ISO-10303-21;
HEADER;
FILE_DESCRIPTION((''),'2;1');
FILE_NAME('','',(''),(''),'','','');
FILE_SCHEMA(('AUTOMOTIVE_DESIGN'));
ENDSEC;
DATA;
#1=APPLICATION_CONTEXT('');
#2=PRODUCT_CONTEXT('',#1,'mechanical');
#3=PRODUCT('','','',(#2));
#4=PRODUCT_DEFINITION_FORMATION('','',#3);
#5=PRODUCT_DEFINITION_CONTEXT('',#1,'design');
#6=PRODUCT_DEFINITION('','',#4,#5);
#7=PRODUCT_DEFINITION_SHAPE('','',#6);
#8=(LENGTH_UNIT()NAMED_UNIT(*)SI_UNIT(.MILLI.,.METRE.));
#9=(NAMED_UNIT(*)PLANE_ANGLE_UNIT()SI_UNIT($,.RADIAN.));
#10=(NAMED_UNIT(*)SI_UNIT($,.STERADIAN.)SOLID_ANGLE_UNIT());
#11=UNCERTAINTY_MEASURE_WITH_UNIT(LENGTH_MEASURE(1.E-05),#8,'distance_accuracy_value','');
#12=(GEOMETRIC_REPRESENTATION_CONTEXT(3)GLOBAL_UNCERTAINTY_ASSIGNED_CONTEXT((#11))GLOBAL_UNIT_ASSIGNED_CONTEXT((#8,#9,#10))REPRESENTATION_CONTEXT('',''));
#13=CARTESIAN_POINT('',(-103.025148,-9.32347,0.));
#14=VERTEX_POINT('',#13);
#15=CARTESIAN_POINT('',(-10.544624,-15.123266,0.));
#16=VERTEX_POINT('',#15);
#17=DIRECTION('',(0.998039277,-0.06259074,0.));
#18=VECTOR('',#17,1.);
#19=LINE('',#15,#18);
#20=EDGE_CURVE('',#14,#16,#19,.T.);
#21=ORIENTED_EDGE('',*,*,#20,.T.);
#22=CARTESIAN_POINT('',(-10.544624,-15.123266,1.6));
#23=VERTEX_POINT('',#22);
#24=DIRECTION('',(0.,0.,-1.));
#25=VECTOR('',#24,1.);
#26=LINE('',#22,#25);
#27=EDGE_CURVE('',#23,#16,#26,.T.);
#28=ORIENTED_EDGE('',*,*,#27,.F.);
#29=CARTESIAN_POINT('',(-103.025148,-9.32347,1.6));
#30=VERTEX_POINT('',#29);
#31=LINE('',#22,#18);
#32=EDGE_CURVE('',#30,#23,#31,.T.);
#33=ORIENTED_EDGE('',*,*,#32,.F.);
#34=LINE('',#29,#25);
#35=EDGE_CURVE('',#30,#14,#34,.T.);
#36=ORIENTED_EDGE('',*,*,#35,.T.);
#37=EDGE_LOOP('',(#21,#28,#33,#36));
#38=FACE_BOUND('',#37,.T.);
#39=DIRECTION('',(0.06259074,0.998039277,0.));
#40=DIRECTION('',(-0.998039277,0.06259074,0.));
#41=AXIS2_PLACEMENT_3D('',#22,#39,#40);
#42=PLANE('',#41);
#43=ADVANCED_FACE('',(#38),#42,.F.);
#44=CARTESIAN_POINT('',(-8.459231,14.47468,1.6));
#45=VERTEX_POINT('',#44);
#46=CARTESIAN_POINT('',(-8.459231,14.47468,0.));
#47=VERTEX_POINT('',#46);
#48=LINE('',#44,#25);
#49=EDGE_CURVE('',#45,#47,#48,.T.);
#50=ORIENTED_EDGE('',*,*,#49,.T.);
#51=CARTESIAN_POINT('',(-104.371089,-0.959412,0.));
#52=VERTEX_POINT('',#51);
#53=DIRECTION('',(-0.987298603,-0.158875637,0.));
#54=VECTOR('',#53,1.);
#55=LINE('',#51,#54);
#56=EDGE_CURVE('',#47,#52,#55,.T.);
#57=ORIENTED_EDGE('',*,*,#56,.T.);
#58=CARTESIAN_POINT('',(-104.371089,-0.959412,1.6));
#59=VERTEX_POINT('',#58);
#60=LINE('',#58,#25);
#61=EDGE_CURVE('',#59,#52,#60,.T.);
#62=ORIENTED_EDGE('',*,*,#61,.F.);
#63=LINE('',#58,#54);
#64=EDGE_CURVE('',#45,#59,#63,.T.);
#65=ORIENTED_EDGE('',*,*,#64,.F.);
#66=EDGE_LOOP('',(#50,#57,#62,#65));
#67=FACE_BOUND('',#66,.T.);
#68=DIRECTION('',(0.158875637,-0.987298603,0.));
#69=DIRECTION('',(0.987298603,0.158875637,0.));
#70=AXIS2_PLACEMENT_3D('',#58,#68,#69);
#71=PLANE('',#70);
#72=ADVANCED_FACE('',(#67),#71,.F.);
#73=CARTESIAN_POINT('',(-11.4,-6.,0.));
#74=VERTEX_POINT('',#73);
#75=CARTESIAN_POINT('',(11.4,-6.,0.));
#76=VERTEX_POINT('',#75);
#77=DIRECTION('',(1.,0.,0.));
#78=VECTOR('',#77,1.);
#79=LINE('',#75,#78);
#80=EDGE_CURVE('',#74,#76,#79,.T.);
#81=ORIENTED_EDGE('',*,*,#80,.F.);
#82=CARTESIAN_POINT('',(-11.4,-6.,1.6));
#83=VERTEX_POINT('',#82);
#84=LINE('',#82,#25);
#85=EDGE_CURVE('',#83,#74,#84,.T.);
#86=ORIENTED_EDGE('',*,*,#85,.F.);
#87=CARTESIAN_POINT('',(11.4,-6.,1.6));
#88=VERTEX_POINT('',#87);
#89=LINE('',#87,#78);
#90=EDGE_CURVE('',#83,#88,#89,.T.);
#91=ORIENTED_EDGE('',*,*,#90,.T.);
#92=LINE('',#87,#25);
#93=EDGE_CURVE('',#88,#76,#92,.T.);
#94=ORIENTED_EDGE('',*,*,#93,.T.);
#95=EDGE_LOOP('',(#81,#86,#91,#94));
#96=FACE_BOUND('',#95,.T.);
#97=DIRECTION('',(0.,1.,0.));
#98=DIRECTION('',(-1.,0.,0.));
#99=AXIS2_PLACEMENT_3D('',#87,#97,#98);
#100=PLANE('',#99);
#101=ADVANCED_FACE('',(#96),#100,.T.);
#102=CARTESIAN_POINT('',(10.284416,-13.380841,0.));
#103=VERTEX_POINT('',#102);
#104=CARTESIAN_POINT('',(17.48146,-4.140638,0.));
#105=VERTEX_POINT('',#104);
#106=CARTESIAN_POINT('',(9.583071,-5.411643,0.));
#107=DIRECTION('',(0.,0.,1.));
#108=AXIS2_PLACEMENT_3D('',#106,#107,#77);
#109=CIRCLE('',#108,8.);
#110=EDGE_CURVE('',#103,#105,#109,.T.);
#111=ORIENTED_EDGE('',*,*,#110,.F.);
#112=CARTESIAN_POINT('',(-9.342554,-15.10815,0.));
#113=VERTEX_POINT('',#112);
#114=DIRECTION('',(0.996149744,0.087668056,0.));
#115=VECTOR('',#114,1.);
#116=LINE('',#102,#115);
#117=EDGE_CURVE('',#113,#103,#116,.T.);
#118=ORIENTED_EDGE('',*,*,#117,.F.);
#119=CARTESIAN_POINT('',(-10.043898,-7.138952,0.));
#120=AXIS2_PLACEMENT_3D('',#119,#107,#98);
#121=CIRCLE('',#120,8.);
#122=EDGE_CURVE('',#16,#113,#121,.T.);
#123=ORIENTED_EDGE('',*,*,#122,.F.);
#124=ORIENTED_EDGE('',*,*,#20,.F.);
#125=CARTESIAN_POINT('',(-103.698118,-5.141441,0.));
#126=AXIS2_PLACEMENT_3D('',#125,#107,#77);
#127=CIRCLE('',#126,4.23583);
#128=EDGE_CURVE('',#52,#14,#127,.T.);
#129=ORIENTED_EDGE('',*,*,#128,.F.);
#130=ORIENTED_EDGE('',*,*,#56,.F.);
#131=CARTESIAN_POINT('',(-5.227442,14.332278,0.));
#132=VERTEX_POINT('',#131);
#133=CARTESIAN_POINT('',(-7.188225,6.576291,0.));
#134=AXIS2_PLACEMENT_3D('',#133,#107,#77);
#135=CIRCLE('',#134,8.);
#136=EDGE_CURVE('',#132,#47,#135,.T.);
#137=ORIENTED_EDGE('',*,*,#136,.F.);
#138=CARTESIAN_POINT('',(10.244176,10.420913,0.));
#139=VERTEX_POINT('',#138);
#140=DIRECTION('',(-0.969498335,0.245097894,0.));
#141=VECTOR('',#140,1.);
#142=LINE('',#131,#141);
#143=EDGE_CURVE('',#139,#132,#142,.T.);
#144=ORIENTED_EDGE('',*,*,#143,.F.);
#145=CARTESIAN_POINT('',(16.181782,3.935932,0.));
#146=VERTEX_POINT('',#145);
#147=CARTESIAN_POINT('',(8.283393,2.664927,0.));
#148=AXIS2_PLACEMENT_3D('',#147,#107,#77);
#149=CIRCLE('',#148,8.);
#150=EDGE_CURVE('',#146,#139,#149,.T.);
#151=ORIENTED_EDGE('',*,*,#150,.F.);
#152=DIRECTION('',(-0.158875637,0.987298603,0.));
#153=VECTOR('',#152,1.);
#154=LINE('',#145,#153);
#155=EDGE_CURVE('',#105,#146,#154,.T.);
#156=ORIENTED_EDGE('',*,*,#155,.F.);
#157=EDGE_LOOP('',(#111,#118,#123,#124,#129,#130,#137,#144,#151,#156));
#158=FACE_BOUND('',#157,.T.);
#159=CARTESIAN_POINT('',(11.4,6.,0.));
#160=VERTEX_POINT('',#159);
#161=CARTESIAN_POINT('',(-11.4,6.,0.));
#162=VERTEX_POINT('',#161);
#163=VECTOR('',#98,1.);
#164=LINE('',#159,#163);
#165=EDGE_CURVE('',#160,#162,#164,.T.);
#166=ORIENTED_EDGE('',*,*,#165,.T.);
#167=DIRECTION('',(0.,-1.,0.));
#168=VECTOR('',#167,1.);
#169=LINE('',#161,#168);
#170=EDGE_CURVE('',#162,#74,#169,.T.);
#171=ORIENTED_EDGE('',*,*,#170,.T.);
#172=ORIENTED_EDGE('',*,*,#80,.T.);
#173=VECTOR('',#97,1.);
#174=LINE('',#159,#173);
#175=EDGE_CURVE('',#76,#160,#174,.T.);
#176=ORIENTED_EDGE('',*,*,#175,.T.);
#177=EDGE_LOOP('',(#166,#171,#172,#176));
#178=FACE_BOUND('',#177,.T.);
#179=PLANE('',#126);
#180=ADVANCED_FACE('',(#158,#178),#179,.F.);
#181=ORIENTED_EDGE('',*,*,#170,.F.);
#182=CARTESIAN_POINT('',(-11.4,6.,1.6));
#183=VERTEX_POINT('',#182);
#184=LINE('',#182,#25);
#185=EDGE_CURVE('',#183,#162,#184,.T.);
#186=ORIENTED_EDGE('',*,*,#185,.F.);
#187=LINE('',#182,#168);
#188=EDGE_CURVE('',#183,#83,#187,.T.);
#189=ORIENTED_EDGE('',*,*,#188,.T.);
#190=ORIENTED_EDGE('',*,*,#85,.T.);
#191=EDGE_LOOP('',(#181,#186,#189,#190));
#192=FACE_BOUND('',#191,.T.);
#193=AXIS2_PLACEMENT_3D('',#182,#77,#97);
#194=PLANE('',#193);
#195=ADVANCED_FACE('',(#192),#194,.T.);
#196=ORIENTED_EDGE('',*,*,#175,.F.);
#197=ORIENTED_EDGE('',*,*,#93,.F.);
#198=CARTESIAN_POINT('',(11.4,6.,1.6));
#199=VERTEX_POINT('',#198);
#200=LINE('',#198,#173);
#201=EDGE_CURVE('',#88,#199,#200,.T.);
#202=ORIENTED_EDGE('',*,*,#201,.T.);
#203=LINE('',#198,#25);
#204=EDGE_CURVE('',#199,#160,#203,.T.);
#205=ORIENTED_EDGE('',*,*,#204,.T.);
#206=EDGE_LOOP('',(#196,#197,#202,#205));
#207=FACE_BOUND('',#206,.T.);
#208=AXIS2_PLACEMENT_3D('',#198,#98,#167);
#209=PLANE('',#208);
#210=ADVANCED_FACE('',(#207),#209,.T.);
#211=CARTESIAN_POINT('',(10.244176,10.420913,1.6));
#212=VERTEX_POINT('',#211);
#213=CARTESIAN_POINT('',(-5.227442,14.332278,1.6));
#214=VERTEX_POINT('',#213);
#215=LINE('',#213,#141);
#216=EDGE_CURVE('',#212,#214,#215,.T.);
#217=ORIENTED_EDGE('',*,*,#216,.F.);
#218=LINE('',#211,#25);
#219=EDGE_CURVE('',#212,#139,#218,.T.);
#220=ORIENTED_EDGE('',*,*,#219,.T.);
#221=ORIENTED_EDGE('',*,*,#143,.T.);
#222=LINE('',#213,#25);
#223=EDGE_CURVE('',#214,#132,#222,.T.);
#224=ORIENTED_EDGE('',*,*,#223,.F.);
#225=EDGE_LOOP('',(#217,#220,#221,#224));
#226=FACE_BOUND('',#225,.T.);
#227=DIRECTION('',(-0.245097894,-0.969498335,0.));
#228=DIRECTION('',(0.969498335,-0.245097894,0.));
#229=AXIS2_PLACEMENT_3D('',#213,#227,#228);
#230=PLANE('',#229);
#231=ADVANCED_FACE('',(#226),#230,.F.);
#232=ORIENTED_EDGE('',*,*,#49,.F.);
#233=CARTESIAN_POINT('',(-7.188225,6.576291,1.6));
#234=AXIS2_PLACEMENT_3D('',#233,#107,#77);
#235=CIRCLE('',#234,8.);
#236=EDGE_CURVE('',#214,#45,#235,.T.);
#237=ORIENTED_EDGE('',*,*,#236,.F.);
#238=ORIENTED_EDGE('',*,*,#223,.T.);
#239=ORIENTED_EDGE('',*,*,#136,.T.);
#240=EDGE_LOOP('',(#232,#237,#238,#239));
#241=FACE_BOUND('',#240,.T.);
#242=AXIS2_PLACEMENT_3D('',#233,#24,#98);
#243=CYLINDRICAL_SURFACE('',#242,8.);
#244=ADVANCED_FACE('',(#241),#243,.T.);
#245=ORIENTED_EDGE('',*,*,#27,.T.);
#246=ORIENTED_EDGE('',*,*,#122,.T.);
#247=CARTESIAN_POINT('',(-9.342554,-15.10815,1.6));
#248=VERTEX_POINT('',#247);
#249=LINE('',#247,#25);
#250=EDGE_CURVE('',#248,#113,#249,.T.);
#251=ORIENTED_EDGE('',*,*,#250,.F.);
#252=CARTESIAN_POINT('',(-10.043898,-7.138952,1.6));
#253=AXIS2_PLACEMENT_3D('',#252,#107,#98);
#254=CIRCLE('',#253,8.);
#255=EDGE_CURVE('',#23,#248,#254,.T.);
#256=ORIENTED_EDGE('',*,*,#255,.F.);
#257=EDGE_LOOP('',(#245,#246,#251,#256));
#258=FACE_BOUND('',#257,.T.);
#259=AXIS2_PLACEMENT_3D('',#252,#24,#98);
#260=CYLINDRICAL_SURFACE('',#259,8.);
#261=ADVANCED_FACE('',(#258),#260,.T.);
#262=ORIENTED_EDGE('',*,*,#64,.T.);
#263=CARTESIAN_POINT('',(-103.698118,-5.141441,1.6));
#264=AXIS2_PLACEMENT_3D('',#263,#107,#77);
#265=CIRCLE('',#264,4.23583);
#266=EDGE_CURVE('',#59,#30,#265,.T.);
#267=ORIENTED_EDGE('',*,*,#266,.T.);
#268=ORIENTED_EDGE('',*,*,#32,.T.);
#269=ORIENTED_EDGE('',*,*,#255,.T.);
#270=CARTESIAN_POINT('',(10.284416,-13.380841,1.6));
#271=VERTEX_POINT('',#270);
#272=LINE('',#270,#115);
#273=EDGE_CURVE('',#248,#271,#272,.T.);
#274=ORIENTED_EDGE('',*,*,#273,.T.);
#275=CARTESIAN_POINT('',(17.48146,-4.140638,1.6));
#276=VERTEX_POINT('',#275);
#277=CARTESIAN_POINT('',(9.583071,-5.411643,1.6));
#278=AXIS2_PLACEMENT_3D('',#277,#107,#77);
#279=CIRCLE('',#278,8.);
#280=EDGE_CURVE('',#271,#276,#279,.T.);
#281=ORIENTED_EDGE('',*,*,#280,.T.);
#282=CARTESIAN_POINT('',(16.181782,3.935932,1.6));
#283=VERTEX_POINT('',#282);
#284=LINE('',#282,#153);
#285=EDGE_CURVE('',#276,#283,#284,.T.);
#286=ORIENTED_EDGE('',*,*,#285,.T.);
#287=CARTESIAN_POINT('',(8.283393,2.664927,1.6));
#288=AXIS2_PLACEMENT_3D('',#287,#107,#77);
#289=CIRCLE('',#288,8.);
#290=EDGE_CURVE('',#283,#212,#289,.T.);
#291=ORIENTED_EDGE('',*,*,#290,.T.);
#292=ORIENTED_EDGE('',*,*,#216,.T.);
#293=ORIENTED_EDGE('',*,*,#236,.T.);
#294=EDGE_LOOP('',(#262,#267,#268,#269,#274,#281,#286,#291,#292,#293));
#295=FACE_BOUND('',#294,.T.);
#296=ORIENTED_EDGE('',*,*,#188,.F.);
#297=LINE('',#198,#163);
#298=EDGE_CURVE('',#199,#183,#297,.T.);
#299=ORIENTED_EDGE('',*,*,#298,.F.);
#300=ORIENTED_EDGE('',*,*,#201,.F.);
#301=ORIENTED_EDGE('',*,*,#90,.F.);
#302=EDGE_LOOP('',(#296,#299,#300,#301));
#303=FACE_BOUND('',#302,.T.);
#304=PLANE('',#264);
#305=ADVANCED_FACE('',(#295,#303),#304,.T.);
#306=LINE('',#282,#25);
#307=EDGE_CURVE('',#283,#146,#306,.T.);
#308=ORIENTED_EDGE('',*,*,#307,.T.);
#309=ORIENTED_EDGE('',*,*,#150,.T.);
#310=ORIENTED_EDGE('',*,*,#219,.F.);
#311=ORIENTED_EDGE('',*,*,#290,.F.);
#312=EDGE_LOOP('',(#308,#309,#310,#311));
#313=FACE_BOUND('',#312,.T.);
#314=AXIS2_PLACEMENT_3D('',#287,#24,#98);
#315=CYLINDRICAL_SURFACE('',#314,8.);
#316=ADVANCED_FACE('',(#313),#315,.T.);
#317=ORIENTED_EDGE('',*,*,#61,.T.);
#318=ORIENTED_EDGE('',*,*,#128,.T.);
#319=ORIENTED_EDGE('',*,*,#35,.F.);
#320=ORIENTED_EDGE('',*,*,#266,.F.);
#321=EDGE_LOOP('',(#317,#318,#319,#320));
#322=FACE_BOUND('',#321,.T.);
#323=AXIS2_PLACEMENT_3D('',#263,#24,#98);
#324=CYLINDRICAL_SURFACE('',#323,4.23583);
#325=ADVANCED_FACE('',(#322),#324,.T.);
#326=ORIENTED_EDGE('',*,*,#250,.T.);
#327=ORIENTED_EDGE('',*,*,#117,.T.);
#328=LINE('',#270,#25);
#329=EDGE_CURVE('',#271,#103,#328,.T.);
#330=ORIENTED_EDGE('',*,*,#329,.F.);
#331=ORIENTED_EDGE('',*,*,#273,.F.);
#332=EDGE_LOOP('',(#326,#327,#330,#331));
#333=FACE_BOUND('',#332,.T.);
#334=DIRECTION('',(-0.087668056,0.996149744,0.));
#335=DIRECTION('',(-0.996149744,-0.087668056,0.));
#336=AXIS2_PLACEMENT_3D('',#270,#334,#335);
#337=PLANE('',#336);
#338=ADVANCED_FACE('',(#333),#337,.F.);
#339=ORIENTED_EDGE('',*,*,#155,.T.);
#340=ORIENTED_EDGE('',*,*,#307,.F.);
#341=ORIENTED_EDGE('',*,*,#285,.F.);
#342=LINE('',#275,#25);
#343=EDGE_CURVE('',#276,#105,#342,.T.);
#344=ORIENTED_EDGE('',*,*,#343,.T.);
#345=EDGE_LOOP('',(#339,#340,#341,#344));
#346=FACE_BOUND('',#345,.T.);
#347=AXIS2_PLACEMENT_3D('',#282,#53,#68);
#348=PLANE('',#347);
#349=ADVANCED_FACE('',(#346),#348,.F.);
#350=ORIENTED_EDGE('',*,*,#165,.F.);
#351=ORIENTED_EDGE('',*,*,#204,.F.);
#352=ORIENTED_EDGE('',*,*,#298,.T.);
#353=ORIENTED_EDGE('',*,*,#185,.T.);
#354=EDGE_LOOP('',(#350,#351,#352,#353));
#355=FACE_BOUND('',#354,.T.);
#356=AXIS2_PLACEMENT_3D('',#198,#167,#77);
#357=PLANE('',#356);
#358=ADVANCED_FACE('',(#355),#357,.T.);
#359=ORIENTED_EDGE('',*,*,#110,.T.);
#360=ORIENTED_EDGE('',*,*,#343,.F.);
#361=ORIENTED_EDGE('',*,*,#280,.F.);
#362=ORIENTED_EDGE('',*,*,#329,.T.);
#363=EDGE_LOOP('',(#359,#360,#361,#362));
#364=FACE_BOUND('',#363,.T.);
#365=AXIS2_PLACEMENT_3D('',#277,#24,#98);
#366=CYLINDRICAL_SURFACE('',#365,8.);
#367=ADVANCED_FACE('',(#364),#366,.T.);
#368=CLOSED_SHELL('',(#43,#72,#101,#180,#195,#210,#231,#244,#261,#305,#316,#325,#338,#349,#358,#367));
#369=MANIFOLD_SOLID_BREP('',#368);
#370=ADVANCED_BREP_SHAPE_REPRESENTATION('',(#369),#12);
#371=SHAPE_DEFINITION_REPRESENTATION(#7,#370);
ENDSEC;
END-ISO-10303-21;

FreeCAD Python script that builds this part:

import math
import FreeCAD as App
import Part
import Sketcher

doc = App.newDocument("Part")
body = doc.addObject("PartDesign::Body", "Body")

# Sketch on XY plane
sketch1 = body.newObject("Sketcher::SketchObject", "Sketch")
sketch1.AttachmentSupport = (doc.getObject("XY_Plane"), [""])
sketch1.MapMode = "FlatFace"
sketch1.addGeometry([
    Part.LineSegment(App.Vector(-8.459231, 14.47468, 0), App.Vector(-104.371089, -0.959412, 0)),  # 0
    Part.ArcOfCircle(Part.Circle(App.Vector(-103.698118, -5.141441, 0), App.Vector(0, 0, 1), 4.23583), math.radians(99.14164), math.radians(279.14164)),  # 1
    Part.LineSegment(App.Vector(-103.025148, -9.32347, 0), App.Vector(-10.544624, -15.123266, 0)),  # 2
    Part.ArcOfCircle(Part.Circle(App.Vector(-10.043898, -7.138952, 0), App.Vector(0, 0, 1), 8), math.radians(-93.588531), math.radians(-84.970534)),  # 3
    Part.LineSegment(App.Vector(-9.342554, -15.10815, 0), App.Vector(10.284416, -13.380841, 0)),  # 4
    Part.ArcOfCircle(Part.Circle(App.Vector(9.583071, -5.411643, 0), App.Vector(0, 0, 1), 8), math.radians(-84.970534), math.radians(9.14164)),  # 5
    Part.LineSegment(App.Vector(17.48146, -4.140638, 0), App.Vector(16.181782, 3.935932, 0)),  # 6
    Part.ArcOfCircle(Part.Circle(App.Vector(8.283393, 2.664927, 0), App.Vector(0, 0, 1), 8), math.radians(9.14164), math.radians(75.812381)),  # 7
    Part.LineSegment(App.Vector(10.244176, 10.420913, 0), App.Vector(-5.227442, 14.332278, 0)),  # 8
    Part.ArcOfCircle(Part.Circle(App.Vector(-7.188225, 6.576291, 0), App.Vector(0, 0, 1), 8), math.radians(75.812381), math.radians(99.14164)),  # 9
    Part.LineSegment(App.Vector(-11.4, -6, 0), App.Vector(-11.4, 6, 0)),  # 10
    Part.LineSegment(App.Vector(-11.4, 6, 0), App.Vector(11.4, 6, 0)),  # 11
    Part.LineSegment(App.Vector(11.4, 6, 0), App.Vector(11.4, -6, 0)),  # 12
    Part.LineSegment(App.Vector(11.4, -6, 0), App.Vector(-11.4, -6, 0)),  # 13
], False)
sketch1.addConstraint([
    Sketcher.Constraint("Tangent", 0, 2, 1, 1),
    Sketcher.Constraint("Coincident", 1, 2, 2, 1),
    Sketcher.Constraint("Tangent", 2, 2, 3, 1),
    Sketcher.Constraint("Tangent", 3, 2, 4, 1),
    Sketcher.Constraint("Tangent", 4, 2, 5, 1),
    Sketcher.Constraint("Tangent", 5, 2, 6, 1),
    Sketcher.Constraint("Tangent", 6, 2, 7, 1),
    Sketcher.Constraint("Tangent", 7, 2, 8, 1),
    Sketcher.Constraint("Tangent", 8, 2, 9, 1),
    Sketcher.Constraint("Tangent", 9, 2, 0, 1),
    Sketcher.Constraint("Coincident", 10, 2, 11, 1),
    Sketcher.Constraint("Coincident", 11, 2, 12, 1),
    Sketcher.Constraint("Coincident", 12, 2, 13, 1),
    Sketcher.Constraint("Coincident", 13, 2, 10, 1),
    Sketcher.Constraint("Vertical", 10),
    Sketcher.Constraint("Horizontal", 11),
    Sketcher.Constraint("Vertical", 12),
    Sketcher.Constraint("Horizontal", 13),
    Sketcher.Constraint("Equal", 3, 5),
    Sketcher.Constraint("Equal", 5, 7),
    Sketcher.Constraint("Equal", 7, 9),
    Sketcher.Constraint("Symmetric", 10, 2, 12, 2, -1, 1),
    Sketcher.Constraint("Perpendicular", 0, 6),
    Sketcher.Constraint("Radius", 3, 8.0),
    Sketcher.Constraint("DistanceY", 10, 1, 10, 2, 12.0),
    Sketcher.Constraint("DistanceX", 11, 1, 11, 2, 22.8),
    Sketcher.Constraint("Radius", 1, 4.23583),
    Sketcher.Constraint("DistanceX", 3, 3, -1, 1, 10.043898),
    Sketcher.Constraint("DistanceX", 2, 2, 9, 3, 3.356399),
    Sketcher.Constraint("DistanceY", 3, 2, 3, 3, 7.969198),
    Sketcher.Constraint("DistanceX", 9, 3, 7, 2, 17.432402),
    Sketcher.Constraint("Distance", 2, 92.662209),
    Sketcher.Constraint("Distance", 4, 19.70283),
    Sketcher.Constraint("DistanceX", 1, 3, -1, 1, 103.698118),
    Sketcher.Constraint("DistanceY", 1, 3, -1, 1, 5.141441),
    Sketcher.Constraint("DistanceY", 3, 3, -1, 1, 7.138952),
    Sketcher.Constraint("DistanceY", -1, 1, 9, 3, 6.576291),
])
pad1 = body.newObject("PartDesign::Pad", "Pad")
pad1.Profile = sketch1
pad1.Length = 1.6

doc.recompute()
